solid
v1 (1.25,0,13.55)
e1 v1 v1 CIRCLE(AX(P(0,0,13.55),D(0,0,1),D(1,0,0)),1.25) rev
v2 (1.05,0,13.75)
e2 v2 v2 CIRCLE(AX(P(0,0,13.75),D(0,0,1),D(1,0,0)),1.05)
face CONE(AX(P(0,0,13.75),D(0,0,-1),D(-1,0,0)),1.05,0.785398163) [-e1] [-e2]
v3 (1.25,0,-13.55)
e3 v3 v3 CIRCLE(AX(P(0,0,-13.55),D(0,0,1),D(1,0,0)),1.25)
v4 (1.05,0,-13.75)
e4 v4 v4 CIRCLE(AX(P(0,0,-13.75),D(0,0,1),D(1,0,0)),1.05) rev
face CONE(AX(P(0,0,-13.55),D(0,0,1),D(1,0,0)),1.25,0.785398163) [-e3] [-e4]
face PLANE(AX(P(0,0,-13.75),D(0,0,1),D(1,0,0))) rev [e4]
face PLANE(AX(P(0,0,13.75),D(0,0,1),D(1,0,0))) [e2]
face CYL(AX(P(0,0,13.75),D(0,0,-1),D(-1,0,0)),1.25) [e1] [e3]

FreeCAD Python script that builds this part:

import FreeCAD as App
import Part
import Sketcher


def edges_at(feature, points):
    """Names of the edges that pass closest to the given points."""
    edges = feature.Shape.Edges
    near = lambda p: min(range(len(edges)), key=lambda i: edges[i].distToShape(Part.Vertex(*p))[0])
    return sorted({f"Edge{near(p) + 1}" for p in points})

doc = App.newDocument("Part")
params = doc.addObject("Spreadsheet::Sheet", "Params")
for row, (alias, value) in enumerate([
    ("sketch1_diameter", "2.5 mm"),
    ("pad1_length", "27.5 mm"),
    ("chamfer_size", "0.2 mm"),
], start=1):
    params.set(f"A{row}", alias)
    params.set(f"B{row}", "=" + value)
    params.setAlias(f"B{row}", alias)

body = doc.addObject("PartDesign::Body", "Body")

sketch1 = body.newObject("Sketcher::SketchObject", "Sketch")
sketch1.AttachmentSupport = (doc.getObject("XY_Plane"), [""])
sketch1.MapMode = "FlatFace"
sketch1.addGeometry(Part.Circle(App.Vector(0, 0, 0), App.Vector(0, 0, 1), 1.2), False)
sketch1.addConstraint([
    Sketcher.Constraint("Coincident", 0, 3, -1, 1),
    Sketcher.Constraint("Diameter", 0, 2.5),
])
sketch1.setExpression("Constraints[1]", "Params.sketch1_diameter")
pad1 = body.newObject("PartDesign::Pad", "Pad")
pad1.Profile = sketch1
pad1.setExpression("Length", "Params.pad1_length")
pad1.Midplane = True
doc.recompute()

chamfer = body.newObject("PartDesign::Chamfer", "Chamfer")
chamfer.Base = (pad1, edges_at(pad1, [(-1.25, 0, -13.75), (-1.25, 0, 13.75)]))
chamfer.setExpression("Size", "Params.chamfer_size")

doc.recompute()
